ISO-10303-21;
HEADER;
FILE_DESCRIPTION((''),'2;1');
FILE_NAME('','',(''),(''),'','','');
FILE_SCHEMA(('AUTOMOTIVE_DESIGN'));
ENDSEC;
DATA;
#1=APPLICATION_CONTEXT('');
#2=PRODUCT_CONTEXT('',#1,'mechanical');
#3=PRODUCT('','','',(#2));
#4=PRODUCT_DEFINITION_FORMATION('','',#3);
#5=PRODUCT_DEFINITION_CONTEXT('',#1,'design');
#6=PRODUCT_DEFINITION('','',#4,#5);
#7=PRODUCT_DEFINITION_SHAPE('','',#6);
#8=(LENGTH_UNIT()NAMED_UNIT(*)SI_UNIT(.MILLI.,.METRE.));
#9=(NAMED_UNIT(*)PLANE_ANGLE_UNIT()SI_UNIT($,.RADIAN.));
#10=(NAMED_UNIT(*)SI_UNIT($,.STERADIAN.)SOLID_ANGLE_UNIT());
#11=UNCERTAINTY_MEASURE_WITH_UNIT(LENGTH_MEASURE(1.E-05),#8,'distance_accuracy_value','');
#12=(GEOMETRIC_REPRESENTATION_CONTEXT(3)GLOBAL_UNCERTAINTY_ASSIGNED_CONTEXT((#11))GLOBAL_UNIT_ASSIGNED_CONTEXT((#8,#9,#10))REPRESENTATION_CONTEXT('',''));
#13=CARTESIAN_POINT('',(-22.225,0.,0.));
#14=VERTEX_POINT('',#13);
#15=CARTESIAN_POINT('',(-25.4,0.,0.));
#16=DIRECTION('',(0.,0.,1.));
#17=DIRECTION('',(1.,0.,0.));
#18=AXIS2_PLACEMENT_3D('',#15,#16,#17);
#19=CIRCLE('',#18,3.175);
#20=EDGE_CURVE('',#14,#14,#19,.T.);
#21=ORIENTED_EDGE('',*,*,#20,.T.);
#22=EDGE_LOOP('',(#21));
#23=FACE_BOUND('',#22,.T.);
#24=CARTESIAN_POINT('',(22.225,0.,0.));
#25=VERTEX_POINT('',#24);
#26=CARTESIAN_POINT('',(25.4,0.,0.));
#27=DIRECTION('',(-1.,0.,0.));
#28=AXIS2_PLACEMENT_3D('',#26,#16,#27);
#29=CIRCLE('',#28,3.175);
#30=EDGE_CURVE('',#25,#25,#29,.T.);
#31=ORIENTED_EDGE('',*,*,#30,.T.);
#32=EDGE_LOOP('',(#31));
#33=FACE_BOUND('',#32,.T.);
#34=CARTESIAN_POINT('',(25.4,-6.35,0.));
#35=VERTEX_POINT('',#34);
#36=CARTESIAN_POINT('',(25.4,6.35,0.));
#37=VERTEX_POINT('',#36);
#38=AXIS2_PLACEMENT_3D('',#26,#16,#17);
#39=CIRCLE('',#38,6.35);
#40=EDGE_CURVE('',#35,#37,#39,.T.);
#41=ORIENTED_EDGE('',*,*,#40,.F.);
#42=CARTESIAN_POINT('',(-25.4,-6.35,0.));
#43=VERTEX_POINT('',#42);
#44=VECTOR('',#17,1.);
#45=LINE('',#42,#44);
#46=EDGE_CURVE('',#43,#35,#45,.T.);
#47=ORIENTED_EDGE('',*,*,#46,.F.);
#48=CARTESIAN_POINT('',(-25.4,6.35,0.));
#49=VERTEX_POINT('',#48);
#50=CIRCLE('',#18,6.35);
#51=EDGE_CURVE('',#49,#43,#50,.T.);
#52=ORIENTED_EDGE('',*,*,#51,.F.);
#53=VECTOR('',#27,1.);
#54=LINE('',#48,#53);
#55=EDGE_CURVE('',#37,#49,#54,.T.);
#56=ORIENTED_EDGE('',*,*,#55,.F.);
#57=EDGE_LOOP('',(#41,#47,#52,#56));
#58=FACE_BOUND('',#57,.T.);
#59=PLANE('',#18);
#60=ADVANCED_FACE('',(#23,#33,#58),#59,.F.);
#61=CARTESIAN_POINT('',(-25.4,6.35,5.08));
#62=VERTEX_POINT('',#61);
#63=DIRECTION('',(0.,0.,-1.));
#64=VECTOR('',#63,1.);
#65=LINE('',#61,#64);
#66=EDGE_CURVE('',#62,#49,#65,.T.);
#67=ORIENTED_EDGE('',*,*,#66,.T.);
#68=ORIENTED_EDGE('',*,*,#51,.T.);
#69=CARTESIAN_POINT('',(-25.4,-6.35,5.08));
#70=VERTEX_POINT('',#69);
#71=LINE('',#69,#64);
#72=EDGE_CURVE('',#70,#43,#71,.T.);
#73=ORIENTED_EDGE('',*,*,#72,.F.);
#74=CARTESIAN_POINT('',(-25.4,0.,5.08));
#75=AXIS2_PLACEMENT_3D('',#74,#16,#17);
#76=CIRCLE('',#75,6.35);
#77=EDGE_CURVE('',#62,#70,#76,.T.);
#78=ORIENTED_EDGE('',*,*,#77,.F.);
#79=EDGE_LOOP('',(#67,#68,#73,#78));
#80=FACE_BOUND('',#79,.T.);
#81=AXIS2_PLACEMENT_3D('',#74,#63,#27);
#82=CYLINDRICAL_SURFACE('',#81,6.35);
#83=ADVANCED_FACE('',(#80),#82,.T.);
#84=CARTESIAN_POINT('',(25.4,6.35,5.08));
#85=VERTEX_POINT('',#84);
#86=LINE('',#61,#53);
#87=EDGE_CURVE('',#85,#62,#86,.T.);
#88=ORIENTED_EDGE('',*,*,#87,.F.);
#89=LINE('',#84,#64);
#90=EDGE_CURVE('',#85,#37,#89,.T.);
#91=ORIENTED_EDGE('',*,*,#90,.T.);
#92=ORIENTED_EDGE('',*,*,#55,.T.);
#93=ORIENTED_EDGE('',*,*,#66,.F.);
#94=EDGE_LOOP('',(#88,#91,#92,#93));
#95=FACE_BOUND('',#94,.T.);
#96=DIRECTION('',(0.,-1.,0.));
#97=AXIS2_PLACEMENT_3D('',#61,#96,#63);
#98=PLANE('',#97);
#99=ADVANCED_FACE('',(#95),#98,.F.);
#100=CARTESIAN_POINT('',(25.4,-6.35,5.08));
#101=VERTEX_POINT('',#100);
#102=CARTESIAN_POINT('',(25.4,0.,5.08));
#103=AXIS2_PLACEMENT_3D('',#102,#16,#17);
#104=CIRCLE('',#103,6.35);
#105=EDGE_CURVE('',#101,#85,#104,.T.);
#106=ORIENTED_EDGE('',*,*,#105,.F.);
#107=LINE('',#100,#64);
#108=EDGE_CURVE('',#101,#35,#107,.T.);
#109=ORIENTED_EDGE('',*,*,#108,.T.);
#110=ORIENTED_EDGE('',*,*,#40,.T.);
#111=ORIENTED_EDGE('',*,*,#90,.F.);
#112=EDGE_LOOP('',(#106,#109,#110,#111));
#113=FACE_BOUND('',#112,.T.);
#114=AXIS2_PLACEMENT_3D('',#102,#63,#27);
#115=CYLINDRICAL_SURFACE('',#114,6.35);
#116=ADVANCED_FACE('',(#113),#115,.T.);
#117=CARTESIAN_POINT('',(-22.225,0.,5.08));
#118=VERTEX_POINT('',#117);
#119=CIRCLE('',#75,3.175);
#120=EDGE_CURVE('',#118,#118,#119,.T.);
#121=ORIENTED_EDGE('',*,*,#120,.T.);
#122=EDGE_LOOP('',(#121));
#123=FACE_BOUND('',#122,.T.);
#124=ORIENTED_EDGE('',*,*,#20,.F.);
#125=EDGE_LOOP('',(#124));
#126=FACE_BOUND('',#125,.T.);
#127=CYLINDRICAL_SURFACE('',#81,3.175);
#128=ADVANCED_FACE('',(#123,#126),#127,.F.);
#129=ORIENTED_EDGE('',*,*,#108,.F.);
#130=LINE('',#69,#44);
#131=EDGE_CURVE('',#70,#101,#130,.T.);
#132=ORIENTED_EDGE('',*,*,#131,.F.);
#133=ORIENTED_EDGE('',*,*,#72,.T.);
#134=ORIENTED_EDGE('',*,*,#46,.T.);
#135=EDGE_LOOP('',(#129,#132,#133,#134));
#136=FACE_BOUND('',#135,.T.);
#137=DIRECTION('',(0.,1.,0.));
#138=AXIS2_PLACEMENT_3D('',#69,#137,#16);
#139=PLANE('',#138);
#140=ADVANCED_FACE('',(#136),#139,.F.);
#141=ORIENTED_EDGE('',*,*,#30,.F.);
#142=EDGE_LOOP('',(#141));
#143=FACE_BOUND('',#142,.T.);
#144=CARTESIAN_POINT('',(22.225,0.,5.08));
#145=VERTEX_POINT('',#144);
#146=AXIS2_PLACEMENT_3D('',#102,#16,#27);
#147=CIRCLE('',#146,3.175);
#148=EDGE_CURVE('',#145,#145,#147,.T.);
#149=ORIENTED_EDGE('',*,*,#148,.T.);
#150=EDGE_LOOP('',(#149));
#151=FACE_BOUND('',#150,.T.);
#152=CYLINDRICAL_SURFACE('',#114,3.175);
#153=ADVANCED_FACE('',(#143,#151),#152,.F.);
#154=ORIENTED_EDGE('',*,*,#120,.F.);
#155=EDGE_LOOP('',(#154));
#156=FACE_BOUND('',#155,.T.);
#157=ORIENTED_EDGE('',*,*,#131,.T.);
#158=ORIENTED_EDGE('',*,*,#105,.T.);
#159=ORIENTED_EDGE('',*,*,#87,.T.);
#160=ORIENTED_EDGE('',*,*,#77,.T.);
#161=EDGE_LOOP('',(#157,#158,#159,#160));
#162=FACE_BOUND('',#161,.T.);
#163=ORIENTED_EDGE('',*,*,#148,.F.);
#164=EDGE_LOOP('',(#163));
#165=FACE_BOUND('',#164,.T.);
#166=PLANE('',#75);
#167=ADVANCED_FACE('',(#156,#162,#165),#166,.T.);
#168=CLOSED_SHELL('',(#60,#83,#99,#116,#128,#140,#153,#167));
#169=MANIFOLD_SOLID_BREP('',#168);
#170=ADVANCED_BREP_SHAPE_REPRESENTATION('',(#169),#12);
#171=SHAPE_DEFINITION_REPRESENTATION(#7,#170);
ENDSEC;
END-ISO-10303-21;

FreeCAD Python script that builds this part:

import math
import FreeCAD as App
import Part
import Sketcher

V = App.Vector
Q = App.Units.Quantity

doc = App.newDocument("Part")
body = doc.addObject("PartDesign::Body", "Body")

# Sketch on XY plane
sketch1 = doc.addObject("Sketcher::SketchObject", "Sketch")
body.addObject(sketch1)
sketch1.AttachmentSupport = (doc.XY_Plane, [""])
sketch1.MapMode = "FlatFace"
sketch1.addGeometry(Part.LineSegment(V(25.4, 6.35, 0), V(-25.4, 6.35, 0)), False)
sketch1.addGeometry(Part.ArcOfCircle(Part.Circle(V(-25.4, 0, 0), V(0, 0, 1), 6.35), math.radians(90), math.radians(270)), False)
sketch1.addGeometry(Part.LineSegment(V(-25.4, -6.35, 0), V(25.4, -6.35, 0)), False)
sketch1.addGeometry(Part.ArcOfCircle(Part.Circle(V(25.4, 0, 0), V(0, 0, 1), 6.35), math.radians(-90), math.radians(90)), False)
sketch1.addGeometry(Part.Circle(V(25.4, 0, 0), V(0, 0, 1), 3.175), False)
sketch1.addGeometry(Part.Circle(V(-25.4, 0, 0), V(0, 0, 1), 3.175), False)
sketch1.addConstraint(Sketcher.Constraint("Tangent", 0, 2, 1, 1))
sketch1.addConstraint(Sketcher.Constraint("Tangent", 1, 2, 2, 1))
sketch1.addConstraint(Sketcher.Constraint("Tangent", 2, 2, 3, 1))
sketch1.addConstraint(Sketcher.Constraint("Tangent", 3, 2, 0, 1))
sketch1.addConstraint(Sketcher.Constraint("Horizontal", 0))
sketch1.addConstraint(Sketcher.Constraint("Horizontal", 2))
sketch1.addConstraint(Sketcher.Constraint("Coincident", 4, 3, 3, 3))
sketch1.addConstraint(Sketcher.Constraint("Coincident", 5, 3, 1, 3))
sketch1.addConstraint(Sketcher.Constraint("Equal", 4, 5))
sketch1.addConstraint(Sketcher.Constraint("Symmetric", 1, 3, 3, 3, -1, 1))
sketch1.addConstraint(Sketcher.Constraint("Diameter", 4, Q("0.25 in")))
sketch1.addConstraint(Sketcher.Constraint("DistanceX", 0, 2, 0, 1, Q("2 in")))
sketch1.addConstraint(Sketcher.Constraint("Radius", 1, Q("0.25 in")))
pad1 = doc.addObject("PartDesign::Pad", "Pad")
body.addObject(pad1)
pad1.Profile = sketch1
pad1.Length = Q("0.2 in")

doc.recompute()
